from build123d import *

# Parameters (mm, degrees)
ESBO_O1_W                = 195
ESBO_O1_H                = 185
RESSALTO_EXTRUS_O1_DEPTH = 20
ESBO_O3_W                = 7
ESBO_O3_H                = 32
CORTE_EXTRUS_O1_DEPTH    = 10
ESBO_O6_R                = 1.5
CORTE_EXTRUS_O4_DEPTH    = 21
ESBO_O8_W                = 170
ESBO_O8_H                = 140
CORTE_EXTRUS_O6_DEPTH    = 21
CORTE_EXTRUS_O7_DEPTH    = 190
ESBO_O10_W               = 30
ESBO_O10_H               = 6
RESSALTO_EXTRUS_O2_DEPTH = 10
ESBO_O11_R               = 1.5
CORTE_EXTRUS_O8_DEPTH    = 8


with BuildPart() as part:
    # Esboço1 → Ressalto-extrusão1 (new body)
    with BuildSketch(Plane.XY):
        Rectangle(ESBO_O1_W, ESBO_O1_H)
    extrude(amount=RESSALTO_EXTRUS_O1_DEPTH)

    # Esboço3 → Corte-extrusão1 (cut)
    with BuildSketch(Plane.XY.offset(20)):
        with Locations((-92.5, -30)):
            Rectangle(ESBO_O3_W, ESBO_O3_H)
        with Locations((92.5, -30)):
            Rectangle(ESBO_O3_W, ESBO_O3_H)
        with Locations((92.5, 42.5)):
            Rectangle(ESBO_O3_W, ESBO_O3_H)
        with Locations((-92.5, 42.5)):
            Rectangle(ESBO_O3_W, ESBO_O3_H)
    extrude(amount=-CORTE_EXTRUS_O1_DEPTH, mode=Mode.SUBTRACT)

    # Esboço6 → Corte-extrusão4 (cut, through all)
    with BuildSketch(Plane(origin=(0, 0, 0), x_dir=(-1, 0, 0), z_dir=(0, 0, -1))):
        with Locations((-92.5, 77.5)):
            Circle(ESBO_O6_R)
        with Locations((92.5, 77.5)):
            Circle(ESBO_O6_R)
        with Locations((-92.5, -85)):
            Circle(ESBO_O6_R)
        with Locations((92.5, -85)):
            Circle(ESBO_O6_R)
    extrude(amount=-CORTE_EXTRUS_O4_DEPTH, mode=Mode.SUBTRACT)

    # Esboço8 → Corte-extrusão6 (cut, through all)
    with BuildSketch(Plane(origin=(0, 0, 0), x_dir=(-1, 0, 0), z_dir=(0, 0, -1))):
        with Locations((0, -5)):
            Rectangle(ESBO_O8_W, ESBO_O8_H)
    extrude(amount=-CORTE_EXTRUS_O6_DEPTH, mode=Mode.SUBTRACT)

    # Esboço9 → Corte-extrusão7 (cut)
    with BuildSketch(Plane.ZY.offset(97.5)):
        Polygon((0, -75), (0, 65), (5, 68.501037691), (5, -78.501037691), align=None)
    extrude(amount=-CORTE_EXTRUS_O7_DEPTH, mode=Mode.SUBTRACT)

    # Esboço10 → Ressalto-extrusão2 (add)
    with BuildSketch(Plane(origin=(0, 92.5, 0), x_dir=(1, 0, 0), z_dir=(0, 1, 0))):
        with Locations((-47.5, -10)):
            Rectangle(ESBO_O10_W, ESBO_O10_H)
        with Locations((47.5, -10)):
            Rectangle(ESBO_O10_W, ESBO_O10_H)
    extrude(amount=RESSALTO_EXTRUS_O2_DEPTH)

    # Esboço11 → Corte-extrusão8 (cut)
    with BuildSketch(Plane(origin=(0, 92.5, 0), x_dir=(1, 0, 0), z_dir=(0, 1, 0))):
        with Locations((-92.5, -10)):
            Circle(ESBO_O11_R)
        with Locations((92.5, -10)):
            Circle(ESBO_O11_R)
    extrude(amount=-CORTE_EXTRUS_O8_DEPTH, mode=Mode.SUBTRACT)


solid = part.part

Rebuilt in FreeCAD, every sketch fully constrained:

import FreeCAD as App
import Part
import Sketcher

V = App.Vector
Q = App.Units.Quantity

doc = App.newDocument("Part")
params = doc.addObject("Spreadsheet::Sheet", "Params")
for row, (alias, value) in enumerate([
    ("sketch1_width", "195 mm"),
    ("sketch1_height", "185 mm"),
    ("pad1_length", "20 mm"),
    ("sketch2_width", "7 mm"),
    ("sketch2_height", "32 mm"),
    ("pocket1_length", "10 mm"),
    ("sketch3_diameter", "3 mm"),
    ("sketch4_width", "170 mm"),
    ("sketch4_height", "140 mm"),
    ("sketch5_width", "140 mm"),
    ("pocket4_length", "190 mm"),
    ("sketch6_width", "30 mm"),
    ("sketch6_height", "6 mm"),
    ("pad2_length", "10 mm"),
    ("sketch7_diameter", "3 mm"),
    ("pocket5_length", "8 mm"),
], start=1):
    params.set(f"A{row}", alias)
    params.set(f"B{row}", "=" + value)
    params.setAlias(f"B{row}", alias)

body = doc.addObject("PartDesign::Body", "Body")

# Sketch on XY plane
sketch1 = body.newObject("Sketcher::SketchObject", "Sketch")
sketch1.AttachmentSupport = (doc.getObject("XY_Plane"), [""])
sketch1.MapMode = "FlatFace"
sketch1.addGeometry([
    Part.LineSegment(V(-98, 92, 0), V(-98, -92, 0)),
    Part.LineSegment(V(-98, -92, 0), V(98, -92, 0)),
    Part.LineSegment(V(98, -92, 0), V(98, 92, 0)),
    Part.LineSegment(V(98, 92, 0), V(-98, 92, 0)),
], False)
sketch1.addConstraint([
    Sketcher.Constraint("Coincident", 0, 2, 1, 1),
    Sketcher.Constraint("Coincident", 1, 2, 2, 1),
    Sketcher.Constraint("Coincident", 2, 2, 3, 1),
    Sketcher.Constraint("Coincident", 3, 2, 0, 1),
    Sketcher.Constraint("Vertical", 0),
    Sketcher.Constraint("Horizontal", 1),
    Sketcher.Constraint("Vertical", 2),
    Sketcher.Constraint("Horizontal", 3),
    Sketcher.Constraint("Symmetric", 0, 2, 2, 2, -1, 1),
    Sketcher.Constraint("DistanceX", 1, 1, 1, 2, Q("195 mm")),
    Sketcher.Constraint("DistanceY", 0, 2, 0, 1, Q("185 mm")),
])
sketch1.setExpression("Constraints[9]", "Params.sketch1_width")
sketch1.setExpression("Constraints[10]", "Params.sketch1_height")
pad1 = body.newObject("PartDesign::Pad", "Pad")
pad1.Profile = sketch1
pad1.setExpression("Length", "Params.pad1_length")

# Sketch on XY plane
sketch2 = body.newObject("Sketcher::SketchObject", "Sketch001")
sketch2.AttachmentSupport = (doc.getObject("XY_Plane"), [""])
sketch2.MapMode = "FlatFace"
sketch2.AttachmentOffset = App.Placement(V(0, 0, 20), App.Rotation())
sketch2.addGeometry([
    Part.LineSegment(V(-96, -14, 0), V(-96, -46, 0)),  # 0
    Part.LineSegment(V(-96, -46, 0), V(-89, -46, 0)),  # 1
    Part.LineSegment(V(-89, -46, 0), V(-89, -14, 0)),  # 2
    Part.LineSegment(V(-89, -14, 0), V(-96, -14, 0)),  # 3
    Part.LineSegment(V(89, -14, 0), V(89, -46, 0)),  # 4
    Part.LineSegment(V(89, -46, 0), V(96, -46, 0)),  # 5
    Part.LineSegment(V(96, -46, 0), V(96, -14, 0)),  # 6
    Part.LineSegment(V(96, -14, 0), V(89, -14, 0)),  # 7
    Part.LineSegment(V(89, 58, 0), V(89, 26, 0)),  # 8
    Part.LineSegment(V(89, 26, 0), V(96, 26, 0)),  # 9
    Part.LineSegment(V(96, 26, 0), V(96, 58, 0)),  # 10
    Part.LineSegment(V(96, 58, 0), V(89, 58, 0)),  # 11
    Part.LineSegment(V(-96, 58, 0), V(-96, 26, 0)),  # 12
    Part.LineSegment(V(-96, 26, 0), V(-89, 26, 0)),  # 13
    Part.LineSegment(V(-89, 26, 0), V(-89, 58, 0)),  # 14
    Part.LineSegment(V(-89, 58, 0), V(-96, 58, 0)),  # 15
], False)
sketch2.addConstraint([
    Sketcher.Constraint("Coincident", 0, 2, 1, 1),
    Sketcher.Constraint("Coincident", 1, 2, 2, 1),
    Sketcher.Constraint("Coincident", 2, 2, 3, 1),
    Sketcher.Constraint("Coincident", 3, 2, 0, 1),
    Sketcher.Constraint("Coincident", 4, 2, 5, 1),
    Sketcher.Constraint("Coincident", 5, 2, 6, 1),
    Sketcher.Constraint("Coincident", 6, 2, 7, 1),
    Sketcher.Constraint("Coincident", 7, 2, 4, 1),
    Sketcher.Constraint("Coincident", 8, 2, 9, 1),
    Sketcher.Constraint("Coincident", 9, 2, 10, 1),
    Sketcher.Constraint("Coincident", 10, 2, 11, 1),
    Sketcher.Constraint("Coincident", 11, 2, 8, 1),
    Sketcher.Constraint("Coincident", 12, 2, 13, 1),
    Sketcher.Constraint("Coincident", 13, 2, 14, 1),
    Sketcher.Constraint("Coincident", 14, 2, 15, 1),
    Sketcher.Constraint("Coincident", 15, 2, 12, 1),
    Sketcher.Constraint("Vertical", 0),
    Sketcher.Constraint("Horizontal", 1),
    Sketcher.Constraint("Vertical", 2),
    Sketcher.Constraint("Horizontal", 3),
    Sketcher.Constraint("Vertical", 4),
    Sketcher.Constraint("Horizontal", 5),
    Sketcher.Constraint("Vertical", 6),
    Sketcher.Constraint("Horizontal", 7),
    Sketcher.Constraint("Vertical", 8),
    Sketcher.Constraint("Horizontal", 9),
    Sketcher.Constraint("Vertical", 10),
    Sketcher.Constraint("Horizontal", 11),
    Sketcher.Constraint("Vertical", 12),
    Sketcher.Constraint("Horizontal", 13),
    Sketcher.Constraint("Vertical", 14),
    Sketcher.Constraint("Horizontal", 15),
    Sketcher.Constraint("Symmetric", 1, 2, 4, 2, -2),
    Sketcher.Constraint("Symmetric", 3, 2, 6, 2, -2),
    Sketcher.Constraint("Symmetric", 9, 2, 12, 2, -2),
    Sketcher.Constraint("Symmetric", 11, 2, 14, 2, -2),
    Sketcher.Constraint("Vertical", 7, 2, 8, 2),
    Sketcher.Constraint("Vertical", 6, 2, 9, 2),
    Sketcher.Constraint("Equal", 6, 8),
    Sketcher.Constraint("DistanceX", 1, 1, 1, 2, Q("7 mm")),
    Sketcher.Constraint("DistanceY", 0, 2, 0, 1, Q("32 mm")),
    Sketcher.Constraint("DistanceX", 0, 2, -1, 1, Q("96 mm")),
    Sketcher.Constraint("DistanceY", 0, 2, -1, 1, Q("46 mm")),
    Sketcher.Constraint("DistanceY", -1, 1, 8, 2, Q("26.5 mm")),
])
sketch2.setExpression("Constraints[39]", "Params.sketch2_width")
sketch2.setExpression("Constraints[40]", "Params.sketch2_height")
pocket1 = body.newObject("PartDesign::Pocket", "Pocket")
pocket1.Profile = sketch2
pocket1.setExpression("Length", "Params.pocket1_length")

# Sketch on XY plane
sketch3 = body.newObject("Sketcher::SketchObject", "Sketch002")
sketch3.AttachmentSupport = (doc.getObject("XY_Plane"), [""])
sketch3.MapMode = "FlatFace"
sketch3.addGeometry([
    Part.Circle(V(92.5, 77.5, 0), V(0, 0, 1), 1.5),
    Part.Circle(V(-92.5, 77.5, 0), V(0, 0, 1), 1.5),
    Part.Circle(V(92.5, -85, 0), V(0, 0, 1), 1.5),
    Part.Circle(V(-92.5, -85, 0), V(0, 0, 1), 1.5),
], False)
sketch3.addConstraint([
    Sketcher.Constraint("Equal", 0, 1),
    Sketcher.Constraint("Equal", 1, 2),
    Sketcher.Constraint("Equal", 2, 3),
    Sketcher.Constraint("Symmetric", 0, 3, 1, 3, -2),
    Sketcher.Constraint("Symmetric", 2, 3, 3, 3, -2),
    Sketcher.Constraint("Vertical", 0, 3, 2, 3),
    Sketcher.Constraint("Diameter", 0, Q("3 mm")),
    Sketcher.Constraint("DistanceY", 2, 3, -1, 1, Q("85 mm")),
    Sketcher.Constraint("DistanceX", 1, 3, 0, 3, Q("185 mm")),
    Sketcher.Constraint("DistanceY", -1, 1, 0, 3, Q("77.5 mm")),
])
sketch3.setExpression("Constraints[6]", "Params.sketch3_diameter")
pocket2 = body.newObject("PartDesign::Pocket", "Pocket001")
pocket2.Profile = sketch3
pocket2.Type = "ThroughAll"
pocket2.Reversed = True

# Sketch on XY plane
sketch4 = body.newObject("Sketcher::SketchObject", "Sketch003")
sketch4.AttachmentSupport = (doc.getObject("XY_Plane"), [""])
sketch4.MapMode = "FlatFace"
sketch4.addGeometry([
    Part.LineSegment(V(85, 65, 0), V(85, -75, 0)),
    Part.LineSegment(V(85, -75, 0), V(-85, -75, 0)),
    Part.LineSegment(V(-85, -75, 0), V(-85, 65, 0)),
    Part.LineSegment(V(-85, 65, 0), V(85, 65, 0)),
], False)
sketch4.addConstraint([
    Sketcher.Constraint("Coincident", 0, 2, 1, 1),
    Sketcher.Constraint("Coincident", 1, 2, 2, 1),
    Sketcher.Constraint("Coincident", 2, 2, 3, 1),
    Sketcher.Constraint("Coincident", 3, 2, 0, 1),
    Sketcher.Constraint("Vertical", 0),
    Sketcher.Constraint("Horizontal", 1),
    Sketcher.Constraint("Vertical", 2),
    Sketcher.Constraint("Horizontal", 3),
    Sketcher.Constraint("DistanceX", 1, 2, 1, 1, Q("170 mm")),
    Sketcher.Constraint("DistanceY", 0, 2, 0, 1, Q("140 mm")),
    Sketcher.Constraint("DistanceX", -1, 1, 0, 2, Q("85 mm")),
    Sketcher.Constraint("DistanceY", 0, 2, -1, 1, Q("75 mm")),
])
sketch4.setExpression("Constraints[8]", "Params.sketch4_width")
sketch4.setExpression("Constraints[9]", "Params.sketch4_height")
pocket3 = body.newObject("PartDesign::Pocket", "Pocket002")
pocket3.Profile = sketch4
pocket3.Type = "ThroughAll"
pocket3.Reversed = True

# Sketch on YZ plane
sketch5 = body.newObject("Sketcher::SketchObject", "Sketch004")
sketch5.AttachmentSupport = (doc.getObject("YZ_Plane"), [""])
sketch5.MapMode = "FlatFace"
sketch5.AttachmentOffset = App.Placement(V(0, 0, -97.5), App.Rotation())
sketch5.addGeometry([
    Part.LineSegment(V(65, 0, 0), V(-75, 0, 0)),
    Part.LineSegment(V(-75, 0, 0), V(-79, 5, 0)),
    Part.LineSegment(V(-79, 5, 0), V(69, 5, 0)),
    Part.LineSegment(V(69, 5, 0), V(65, 0, 0)),
], False)
sketch5.addConstraint([
    Sketcher.Constraint("Coincident", 0, 2, 1, 1),
    Sketcher.Constraint("Coincident", 1, 2, 2, 1),
    Sketcher.Constraint("Coincident", 2, 2, 3, 1),
    Sketcher.Constraint("Coincident", 3, 2, 0, 1),
    Sketcher.Constraint("Horizontal", 0),
    Sketcher.Constraint("Horizontal", 2),
    Sketcher.Constraint("PointOnObject", 0, 2, -1),
    Sketcher.Constraint("Equal", 1, 3),
    Sketcher.Constraint("DistanceX", 0, 2, 0, 1, Q("140 mm")),
    Sketcher.Constraint("Angle", 1, Q("125 deg")),
    Sketcher.Constraint("DistanceX", 0, 2, -1, 1, Q("75 mm")),
    Sketcher.Constraint("DistanceY", -1, 1, 1, 2, Q("5 mm")),
])
sketch5.setExpression("Constraints[8]", "Params.sketch5_width")
pocket4 = body.newObject("PartDesign::Pocket", "Pocket003")
pocket4.Profile = sketch5
pocket4.setExpression("Length", "Params.pocket4_length")
pocket4.Reversed = True

# Sketch on XZ plane
sketch6 = body.newObject("Sketcher::SketchObject", "Sketch005")
sketch6.AttachmentSupport = (doc.getObject("XZ_Plane"), [""])
sketch6.MapMode = "FlatFace"
sketch6.AttachmentOffset = App.Placement(V(0, 0, -92.5), App.Rotation())
sketch6.addGeometry([
    Part.LineSegment(V(-62, 7, 0), V(-62, 13, 0)),  # 0
    Part.LineSegment(V(-62, 13, 0), V(-32, 13, 0)),  # 1
    Part.LineSegment(V(-32, 13, 0), V(-32, 7, 0)),  # 2
    Part.LineSegment(V(-32, 7, 0), V(-62, 7, 0)),  # 3
    Part.LineSegment(V(32, 7, 0), V(32, 13, 0)),  # 4
    Part.LineSegment(V(32, 13, 0), V(62, 13, 0)),  # 5
    Part.LineSegment(V(62, 13, 0), V(62, 7, 0)),  # 6
    Part.LineSegment(V(62, 7, 0), V(32, 7, 0)),  # 7
], False)
sketch6.addConstraint([
    Sketcher.Constraint("Coincident", 0, 2, 1, 1),
    Sketcher.Constraint("Coincident", 1, 2, 2, 1),
    Sketcher.Constraint("Coincident", 2, 2, 3, 1),
    Sketcher.Constraint("Coincident", 3, 2, 0, 1),
    Sketcher.Constraint("Coincident", 4, 2, 5, 1),
    Sketcher.Constraint("Coincident", 5, 2, 6, 1),
    Sketcher.Constraint("Coincident", 6, 2, 7, 1),
    Sketcher.Constraint("Coincident", 7, 2, 4, 1),
    Sketcher.Constraint("Vertical", 0),
    Sketcher.Constraint("Horizontal", 1),
    Sketcher.Constraint("Vertical", 2),
    Sketcher.Constraint("Horizontal", 3),
    Sketcher.Constraint("Vertical", 4),
    Sketcher.Constraint("Horizontal", 5),
    Sketcher.Constraint("Vertical", 6),
    Sketcher.Constraint("Horizontal", 7),
    Sketcher.Constraint("Symmetric", 1, 2, 4, 2, -2),
    Sketcher.Constraint("Symmetric", 3, 2, 6, 2, -2),
    Sketcher.Constraint("DistanceX", 1, 1, 1, 2, Q("30 mm")),
    Sketcher.Constraint("DistanceY", 0, 1, 0, 2, Q("6 mm")),
    Sketcher.Constraint("DistanceY", -1, 1, 0, 2, Q("13 mm")),
    Sketcher.Constraint("DistanceX", 1, 2, 4, 2, Q("65 mm")),
])
sketch6.setExpression("Constraints[18]", "Params.sketch6_width")
sketch6.setExpression("Constraints[19]", "Params.sketch6_height")
pad2 = body.newObject("PartDesign::Pad", "Pad001")
pad2.Profile = sketch6
pad2.setExpression("Length", "Params.pad2_length")
pad2.Reversed = True

# Sketch on XZ plane
sketch7 = body.newObject("Sketcher::SketchObject", "Sketch006")
sketch7.AttachmentSupport = (doc.getObject("XZ_Plane"), [""])
sketch7.MapMode = "FlatFace"
sketch7.AttachmentOffset = App.Placement(V(0, 0, -92.5), App.Rotation())
sketch7.addGeometry([
    Part.Circle(V(-92.5, 10, 0), V(0, 0, 1), 1.5),
    Part.Circle(V(92.5, 10, 0), V(0, 0, 1), 1.5),
], False)
sketch7.addConstraint([
    Sketcher.Constraint("Equal", 0, 1),
    Sketcher.Constraint("Symmetric", 0, 3, 1, 3, -2),
    Sketcher.Constraint("Diameter", 0, Q("3 mm")),
    Sketcher.Constraint("DistanceY", -1, 1, 0, 3, Q("10 mm")),
    Sketcher.Constraint("DistanceX", 0, 3, 1, 3, Q("185 mm")),
])
sketch7.setExpression("Constraints[2]", "Params.sketch7_diameter")
pocket5 = body.newObject("PartDesign::Pocket", "Pocket004")
pocket5.Profile = sketch7
pocket5.setExpression("Length", "Params.pocket5_length")
pocket5.Reversed = True

doc.recompute()
